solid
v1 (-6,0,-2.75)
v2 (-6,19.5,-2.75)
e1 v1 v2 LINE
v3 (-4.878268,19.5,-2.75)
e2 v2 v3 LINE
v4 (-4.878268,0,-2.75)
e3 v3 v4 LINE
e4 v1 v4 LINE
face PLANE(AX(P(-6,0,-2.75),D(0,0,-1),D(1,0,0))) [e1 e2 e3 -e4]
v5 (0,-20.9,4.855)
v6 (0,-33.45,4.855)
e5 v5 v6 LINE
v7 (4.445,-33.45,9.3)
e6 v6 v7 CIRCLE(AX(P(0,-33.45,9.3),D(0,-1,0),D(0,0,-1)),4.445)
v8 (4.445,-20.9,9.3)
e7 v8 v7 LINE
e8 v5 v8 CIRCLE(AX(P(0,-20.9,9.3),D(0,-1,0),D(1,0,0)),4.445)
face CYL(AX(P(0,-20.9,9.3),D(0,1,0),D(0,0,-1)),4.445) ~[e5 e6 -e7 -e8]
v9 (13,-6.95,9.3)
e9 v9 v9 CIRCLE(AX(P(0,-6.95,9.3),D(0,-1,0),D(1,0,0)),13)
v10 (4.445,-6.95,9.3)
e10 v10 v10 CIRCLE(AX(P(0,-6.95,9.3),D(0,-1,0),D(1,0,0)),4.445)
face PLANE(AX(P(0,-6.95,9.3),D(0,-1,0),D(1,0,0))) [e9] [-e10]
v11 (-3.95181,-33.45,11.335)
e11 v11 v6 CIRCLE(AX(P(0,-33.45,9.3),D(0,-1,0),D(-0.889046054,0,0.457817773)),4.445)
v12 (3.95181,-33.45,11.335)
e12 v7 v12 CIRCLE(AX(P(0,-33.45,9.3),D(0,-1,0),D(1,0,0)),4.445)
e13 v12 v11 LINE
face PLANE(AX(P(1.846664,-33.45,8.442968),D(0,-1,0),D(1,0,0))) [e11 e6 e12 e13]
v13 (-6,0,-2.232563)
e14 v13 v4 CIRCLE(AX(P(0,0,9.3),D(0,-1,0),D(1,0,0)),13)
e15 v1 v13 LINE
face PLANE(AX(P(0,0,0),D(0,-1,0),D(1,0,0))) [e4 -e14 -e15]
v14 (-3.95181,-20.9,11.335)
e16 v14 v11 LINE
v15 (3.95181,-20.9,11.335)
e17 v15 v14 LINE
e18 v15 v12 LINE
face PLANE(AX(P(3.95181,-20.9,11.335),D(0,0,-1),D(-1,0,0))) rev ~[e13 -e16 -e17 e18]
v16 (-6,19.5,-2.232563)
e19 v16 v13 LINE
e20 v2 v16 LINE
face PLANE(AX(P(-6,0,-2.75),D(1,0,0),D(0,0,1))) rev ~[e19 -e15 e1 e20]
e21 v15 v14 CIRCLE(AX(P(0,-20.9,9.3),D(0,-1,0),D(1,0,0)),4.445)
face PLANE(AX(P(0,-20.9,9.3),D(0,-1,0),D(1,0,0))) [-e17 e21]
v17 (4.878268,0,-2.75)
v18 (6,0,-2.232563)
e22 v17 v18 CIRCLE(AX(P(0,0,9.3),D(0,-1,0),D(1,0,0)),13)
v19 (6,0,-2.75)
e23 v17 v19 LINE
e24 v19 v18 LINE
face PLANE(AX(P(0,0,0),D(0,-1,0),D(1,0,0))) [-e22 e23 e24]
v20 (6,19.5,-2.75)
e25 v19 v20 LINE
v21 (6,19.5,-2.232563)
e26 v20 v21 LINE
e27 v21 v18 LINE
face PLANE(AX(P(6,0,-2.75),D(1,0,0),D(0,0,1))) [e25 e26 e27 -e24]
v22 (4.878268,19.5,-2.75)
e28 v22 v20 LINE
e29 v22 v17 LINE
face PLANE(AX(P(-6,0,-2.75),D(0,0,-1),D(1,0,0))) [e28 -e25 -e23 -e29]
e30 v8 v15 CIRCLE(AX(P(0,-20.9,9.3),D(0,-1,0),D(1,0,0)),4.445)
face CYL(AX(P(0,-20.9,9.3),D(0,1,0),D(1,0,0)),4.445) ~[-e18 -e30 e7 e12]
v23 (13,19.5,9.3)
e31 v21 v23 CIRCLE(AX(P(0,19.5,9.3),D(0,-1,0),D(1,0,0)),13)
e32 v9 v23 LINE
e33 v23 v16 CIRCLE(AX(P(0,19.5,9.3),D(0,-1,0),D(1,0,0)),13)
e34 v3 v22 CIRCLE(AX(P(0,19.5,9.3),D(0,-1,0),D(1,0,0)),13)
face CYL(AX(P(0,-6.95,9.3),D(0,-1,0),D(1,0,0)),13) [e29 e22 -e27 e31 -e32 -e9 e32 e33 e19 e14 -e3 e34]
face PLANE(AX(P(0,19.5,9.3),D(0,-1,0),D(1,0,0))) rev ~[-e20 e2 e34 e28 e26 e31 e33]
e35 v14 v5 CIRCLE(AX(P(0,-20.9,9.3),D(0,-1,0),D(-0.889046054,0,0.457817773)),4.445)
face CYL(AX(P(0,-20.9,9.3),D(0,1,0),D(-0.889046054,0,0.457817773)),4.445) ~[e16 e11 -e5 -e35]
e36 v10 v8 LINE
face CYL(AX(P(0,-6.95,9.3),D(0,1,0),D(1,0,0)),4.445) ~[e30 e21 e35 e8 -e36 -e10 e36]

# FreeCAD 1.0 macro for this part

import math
import FreeCAD as App
import Part
import Sketcher
from FreeCAD import Vector
Q = App.Units.Quantity

doc = App.newDocument("Part")
body = doc.addObject("PartDesign::Body", "Body")

# Sketch on XZ plane
sketch1 = body.newObject("Sketcher::SketchObject", "Sketch")
sketch1.AttachmentSupport = (doc.getObject("XZ_Plane"), [""])
sketch1.MapMode = "FlatFace"
sketch1.addGeometry([
    Part.LineSegment(Vector(-6, 2.75, 0), Vector(-6, -2.75, 0)),
    Part.LineSegment(Vector(-6, -2.75, 0), Vector(6, -2.75, 0)),
    Part.LineSegment(Vector(6, -2.75, 0), Vector(6, 2.75, 0)),
    Part.LineSegment(Vector(6, 2.75, 0), Vector(-6, 2.75, 0)),
], False)
sketch1.addConstraint([
    Sketcher.Constraint("Coincident", 0, 2, 1, 1),
    Sketcher.Constraint("Coincident", 1, 2, 2, 1),
    Sketcher.Constraint("Coincident", 2, 2, 3, 1),
    Sketcher.Constraint("Coincident", 3, 2, 0, 1),
    Sketcher.Constraint("Vertical", 0),
    Sketcher.Constraint("Horizontal", 1),
    Sketcher.Constraint("Vertical", 2),
    Sketcher.Constraint("Horizontal", 3),
    Sketcher.Constraint("Symmetric", 0, 2, 2, 2, -1, 1),
    Sketcher.Constraint("DistanceX", 1, 1, 1, 2, Q("12 mm")),
    Sketcher.Constraint("DistanceY", 0, 2, 0, 1, Q("5.5 mm")),
])
pad1 = body.newObject("PartDesign::Pad", "Pad")
pad1.Profile = sketch1
pad1.Length = 19.5
pad1.Reversed = True

# Sketch on XZ plane
sketch2 = body.newObject("Sketcher::SketchObject", "Sketch001")
sketch2.AttachmentSupport = (doc.getObject("XZ_Plane"), [""])
sketch2.MapMode = "FlatFace"
sketch2.AttachmentOffset = App.Placement(Vector(0, 0, 6.95), App.Rotation())
sketch2.addGeometry(Part.Circle(Vector(0, 9.3, 0), Vector(0, 0, 1), 13), False)
sketch2.addConstraint([
    Sketcher.Constraint("PointOnObject", 0, 3, -2),
    Sketcher.Constraint("Diameter", 0, Q("26 mm")),
    Sketcher.Constraint("DistanceY", -1, 1, 0, 3, Q("9.3 mm")),
])
pad2 = body.newObject("PartDesign::Pad", "Pad001")
pad2.Profile = sketch2
pad2.Length = 26.45
pad2.Reversed = True

# Sketch on XZ plane
sketch3 = body.newObject("Sketcher::SketchObject", "Sketch002")
sketch3.AttachmentSupport = (doc.getObject("XZ_Plane"), [""])
sketch3.MapMode = "FlatFace"
sketch3.AttachmentOffset = App.Placement(Vector(0, 0, 6.95), App.Rotation())
sketch3.addGeometry(Part.Circle(Vector(0, 9.3, 0), Vector(0, 0, 1), 4.445), False)
sketch3.addConstraint([
    Sketcher.Constraint("PointOnObject", 0, 3, -2),
    Sketcher.Constraint("Diameter", 0, Q("8.89 mm")),
    Sketcher.Constraint("DistanceY", -1, 1, 0, 3, Q("9.3 mm")),
])
pad3 = body.newObject("PartDesign::Pad", "Pad002")
pad3.Profile = sketch3
pad3.Length = 13.95

# Sketch on XZ plane
sketch4 = body.newObject("Sketcher::SketchObject", "Sketch003")
sketch4.AttachmentSupport = (doc.getObject("XZ_Plane"), [""])
sketch4.MapMode = "FlatFace"
sketch4.AttachmentOffset = App.Placement(Vector(0, 0, 20.9), App.Rotation())
sketch4.addGeometry([
    Part.ArcOfCircle(Part.Circle(Vector(0, 9.3, 0), Vector(0, 0, 1), 4.445), math.radians(-90), math.radians(0)),
    Part.ArcOfCircle(Part.Circle(Vector(0, 9.3, 0), Vector(0, 0, 1), 4.445), math.radians(0), math.radians(27.246382)),
    Part.LineSegment(Vector(3.95181, 11.335, 0), Vector(-3.95181, 11.335, 0)),
    Part.ArcOfCircle(Part.Circle(Vector(0, 9.3, 0), Vector(0, 0, 1), 4.445), math.radians(152.753618), math.radians(270)),
], False)
sketch4.addConstraint([
    Sketcher.Constraint("Tangent", 0, 2, 1, 1),
    Sketcher.Constraint("Coincident", 1, 2, 2, 1),
    Sketcher.Constraint("Coincident", 2, 2, 3, 1),
    Sketcher.Constraint("Tangent", 3, 2, 0, 1),
    Sketcher.Constraint("Horizontal", 2),
    Sketcher.Constraint("Equal", 0, 1),
    Sketcher.Constraint("Equal", 1, 3),
    Sketcher.Constraint("PointOnObject", 0, 3, -2),
    Sketcher.Constraint("PointOnObject", 3, 2, -2),
    Sketcher.Constraint("Horizontal", 3, 3, 0, 2),
    Sketcher.Constraint("Radius", 0, Q("4.445 mm")),
    Sketcher.Constraint("DistanceY", -1, 1, 0, 3, Q("9.3 mm")),
    Sketcher.Constraint("DistanceY", 3, 2, 2, 2, Q("6.48 mm")),
])
pad4 = body.newObject("PartDesign::Pad", "Pad003")
pad4.Profile = sketch4
pad4.Length = 12.55

doc.recompute()
